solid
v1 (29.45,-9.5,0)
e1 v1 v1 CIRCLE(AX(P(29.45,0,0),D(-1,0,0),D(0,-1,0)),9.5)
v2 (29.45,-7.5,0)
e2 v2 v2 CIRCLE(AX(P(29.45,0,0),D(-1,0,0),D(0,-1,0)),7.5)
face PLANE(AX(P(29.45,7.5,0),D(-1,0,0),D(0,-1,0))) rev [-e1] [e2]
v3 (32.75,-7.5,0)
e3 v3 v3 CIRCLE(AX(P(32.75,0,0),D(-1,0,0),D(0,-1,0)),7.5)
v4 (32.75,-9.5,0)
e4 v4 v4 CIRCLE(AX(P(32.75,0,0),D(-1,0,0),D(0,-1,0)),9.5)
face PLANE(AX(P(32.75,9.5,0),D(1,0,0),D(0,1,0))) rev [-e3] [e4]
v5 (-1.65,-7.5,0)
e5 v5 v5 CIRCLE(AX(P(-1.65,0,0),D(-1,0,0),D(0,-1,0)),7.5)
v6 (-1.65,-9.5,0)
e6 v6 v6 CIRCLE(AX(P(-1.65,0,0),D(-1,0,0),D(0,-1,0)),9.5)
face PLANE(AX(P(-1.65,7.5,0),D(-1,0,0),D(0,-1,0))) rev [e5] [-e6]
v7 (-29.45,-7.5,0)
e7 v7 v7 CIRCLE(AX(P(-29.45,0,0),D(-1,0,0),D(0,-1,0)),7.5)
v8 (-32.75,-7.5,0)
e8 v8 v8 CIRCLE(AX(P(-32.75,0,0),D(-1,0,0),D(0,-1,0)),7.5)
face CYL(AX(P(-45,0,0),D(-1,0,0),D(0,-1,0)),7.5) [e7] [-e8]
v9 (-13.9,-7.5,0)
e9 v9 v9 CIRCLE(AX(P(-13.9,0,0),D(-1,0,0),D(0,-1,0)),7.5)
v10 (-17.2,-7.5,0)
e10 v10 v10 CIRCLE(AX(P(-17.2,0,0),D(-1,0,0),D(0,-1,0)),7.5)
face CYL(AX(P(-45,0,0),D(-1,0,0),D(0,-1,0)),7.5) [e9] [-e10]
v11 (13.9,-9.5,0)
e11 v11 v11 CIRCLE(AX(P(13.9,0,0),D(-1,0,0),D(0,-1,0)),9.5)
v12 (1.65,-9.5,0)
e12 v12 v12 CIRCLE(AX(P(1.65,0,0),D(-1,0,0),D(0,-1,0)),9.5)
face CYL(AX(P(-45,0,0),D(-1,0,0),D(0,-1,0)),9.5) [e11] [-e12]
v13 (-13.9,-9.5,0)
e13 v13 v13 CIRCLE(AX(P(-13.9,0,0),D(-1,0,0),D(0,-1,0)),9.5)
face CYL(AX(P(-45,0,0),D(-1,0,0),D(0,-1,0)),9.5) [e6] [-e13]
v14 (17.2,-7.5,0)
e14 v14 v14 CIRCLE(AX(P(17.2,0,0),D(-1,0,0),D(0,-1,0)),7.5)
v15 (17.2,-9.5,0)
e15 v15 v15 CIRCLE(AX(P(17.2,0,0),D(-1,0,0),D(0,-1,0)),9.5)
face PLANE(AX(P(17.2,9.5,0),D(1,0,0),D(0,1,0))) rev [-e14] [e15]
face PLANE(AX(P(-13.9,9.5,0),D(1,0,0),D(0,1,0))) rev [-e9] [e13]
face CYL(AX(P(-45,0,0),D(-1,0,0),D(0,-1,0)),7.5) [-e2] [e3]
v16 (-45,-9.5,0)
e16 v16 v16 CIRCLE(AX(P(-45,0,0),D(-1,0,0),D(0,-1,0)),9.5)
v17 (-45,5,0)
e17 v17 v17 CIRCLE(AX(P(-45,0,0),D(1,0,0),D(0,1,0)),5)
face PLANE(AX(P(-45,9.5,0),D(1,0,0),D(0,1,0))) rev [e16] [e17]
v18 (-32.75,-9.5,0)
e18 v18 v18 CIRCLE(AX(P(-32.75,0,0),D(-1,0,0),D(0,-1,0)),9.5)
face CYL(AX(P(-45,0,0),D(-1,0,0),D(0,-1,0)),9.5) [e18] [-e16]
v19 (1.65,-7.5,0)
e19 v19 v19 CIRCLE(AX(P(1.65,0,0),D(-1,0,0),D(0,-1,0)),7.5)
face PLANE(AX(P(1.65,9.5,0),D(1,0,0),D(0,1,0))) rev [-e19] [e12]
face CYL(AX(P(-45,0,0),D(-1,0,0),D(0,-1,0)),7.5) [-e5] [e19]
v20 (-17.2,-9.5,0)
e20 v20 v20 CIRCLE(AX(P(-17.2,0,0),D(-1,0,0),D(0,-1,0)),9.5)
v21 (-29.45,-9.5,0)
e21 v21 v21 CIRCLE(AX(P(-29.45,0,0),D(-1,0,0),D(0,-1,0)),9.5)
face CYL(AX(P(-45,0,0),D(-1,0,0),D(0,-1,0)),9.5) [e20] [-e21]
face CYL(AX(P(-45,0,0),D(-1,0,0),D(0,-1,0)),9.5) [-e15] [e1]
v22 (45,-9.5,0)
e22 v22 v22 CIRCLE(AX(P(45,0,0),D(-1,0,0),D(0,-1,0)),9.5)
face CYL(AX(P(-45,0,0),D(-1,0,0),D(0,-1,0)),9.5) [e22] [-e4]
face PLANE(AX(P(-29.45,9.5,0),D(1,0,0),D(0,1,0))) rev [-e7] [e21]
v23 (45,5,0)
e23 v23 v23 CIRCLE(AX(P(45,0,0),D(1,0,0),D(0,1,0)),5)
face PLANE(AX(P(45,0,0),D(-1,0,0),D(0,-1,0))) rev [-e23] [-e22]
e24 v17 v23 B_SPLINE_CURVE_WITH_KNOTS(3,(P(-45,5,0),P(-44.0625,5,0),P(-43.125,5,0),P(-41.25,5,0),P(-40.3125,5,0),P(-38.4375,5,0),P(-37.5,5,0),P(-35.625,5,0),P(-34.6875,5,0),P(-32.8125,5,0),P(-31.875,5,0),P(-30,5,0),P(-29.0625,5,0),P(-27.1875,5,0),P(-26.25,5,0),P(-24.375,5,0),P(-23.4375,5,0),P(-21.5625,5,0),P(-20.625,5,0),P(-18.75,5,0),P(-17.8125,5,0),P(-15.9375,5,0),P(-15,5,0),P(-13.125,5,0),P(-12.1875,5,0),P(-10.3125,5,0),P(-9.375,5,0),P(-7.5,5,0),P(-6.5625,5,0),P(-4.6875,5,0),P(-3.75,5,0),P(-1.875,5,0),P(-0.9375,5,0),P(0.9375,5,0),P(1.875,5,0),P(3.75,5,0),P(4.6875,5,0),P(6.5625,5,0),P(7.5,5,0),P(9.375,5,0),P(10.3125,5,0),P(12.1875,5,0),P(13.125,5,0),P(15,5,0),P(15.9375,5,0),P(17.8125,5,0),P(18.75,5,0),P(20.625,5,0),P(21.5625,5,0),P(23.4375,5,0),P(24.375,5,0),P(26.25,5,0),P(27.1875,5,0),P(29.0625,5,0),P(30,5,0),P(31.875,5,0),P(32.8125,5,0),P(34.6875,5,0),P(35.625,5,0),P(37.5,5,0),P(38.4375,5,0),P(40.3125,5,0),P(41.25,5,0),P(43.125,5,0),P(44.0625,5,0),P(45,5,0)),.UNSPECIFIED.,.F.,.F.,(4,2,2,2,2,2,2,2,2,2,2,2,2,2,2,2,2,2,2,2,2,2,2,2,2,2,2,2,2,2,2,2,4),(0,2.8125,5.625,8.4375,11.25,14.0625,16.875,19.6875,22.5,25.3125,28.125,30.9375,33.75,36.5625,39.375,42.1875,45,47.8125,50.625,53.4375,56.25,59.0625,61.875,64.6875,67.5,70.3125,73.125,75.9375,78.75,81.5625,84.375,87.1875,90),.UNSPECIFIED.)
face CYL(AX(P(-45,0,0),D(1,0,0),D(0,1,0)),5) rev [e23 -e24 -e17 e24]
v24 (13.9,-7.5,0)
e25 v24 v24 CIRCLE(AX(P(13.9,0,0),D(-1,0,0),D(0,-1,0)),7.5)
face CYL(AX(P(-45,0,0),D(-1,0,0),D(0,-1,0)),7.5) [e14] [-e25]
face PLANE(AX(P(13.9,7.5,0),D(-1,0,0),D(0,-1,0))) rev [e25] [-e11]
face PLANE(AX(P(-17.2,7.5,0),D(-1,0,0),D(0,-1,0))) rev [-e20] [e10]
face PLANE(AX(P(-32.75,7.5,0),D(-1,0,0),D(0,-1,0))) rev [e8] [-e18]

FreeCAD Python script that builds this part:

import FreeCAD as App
import Part
import Sketcher
from FreeCAD import Vector


def add_polygon(sketch, points):
    """Adds a closed chain of lines whose ends are joined by coincident constraints."""
    first, n = sketch.GeometryCount, len(points)
    for a, b in zip(points, points[1:] + points[:1]):
        sketch.addGeometry(Part.LineSegment(App.Vector(*a, 0), App.Vector(*b, 0)), False)
    for i in range(n):
        sketch.addConstraint(Sketcher.Constraint("Coincident", first + i, 2, first + (i + 1) % n, 1))

doc = App.newDocument("Part")
body = doc.addObject("PartDesign::Body", "Body")

# Sketch on XY plane
sketch1 = body.newObject("Sketcher::SketchObject", "Sketch")
sketch1.AttachmentSupport = (doc.getObject("XY_Plane"), [""])
sketch1.MapMode = "FlatFace"
add_polygon(sketch1, [(-45, 0), (45, 0), (45, 9.5), (32.75, 9.5), (32.75, 7.5), (29.45, 7.5), (29.45, 9.5), (17.2, 9.5), (17.2, 7.5), (13.9, 7.5), (13.9, 9.5), (1.65, 9.5), (1.65, 7.5), (-1.65, 7.5), (-1.65, 9.5), (-13.9, 9.5), (-13.9, 7.5), (-17.2, 7.5), (-17.2, 9.5), (-29.45, 9.5), (-29.45, 7.5), (-32.75, 7.5), (-32.75, 9.5), (-45, 9.5)])  # lines 0-23
sketch1.addConstraint([
    Sketcher.Constraint("Horizontal", 0),
    Sketcher.Constraint("Vertical", 1),
    Sketcher.Constraint("Horizontal", 2),
    Sketcher.Constraint("Vertical", 3),
    Sketcher.Constraint("Horizontal", 4),
    Sketcher.Constraint("Vertical", 5),
    Sketcher.Constraint("Horizontal", 6),
    Sketcher.Constraint("Vertical", 7),
    Sketcher.Constraint("Horizontal", 8),
    Sketcher.Constraint("Vertical", 9),
    Sketcher.Constraint("Horizontal", 10),
    Sketcher.Constraint("Vertical", 11),
    Sketcher.Constraint("Horizontal", 12),
    Sketcher.Constraint("Vertical", 13),
    Sketcher.Constraint("Horizontal", 14),
    Sketcher.Constraint("Vertical", 15),
    Sketcher.Constraint("Horizontal", 16),
    Sketcher.Constraint("Vertical", 17),
    Sketcher.Constraint("Horizontal", 18),
    Sketcher.Constraint("Vertical", 19),
    Sketcher.Constraint("Horizontal", 20),
    Sketcher.Constraint("Vertical", 21),
    Sketcher.Constraint("Horizontal", 22),
    Sketcher.Constraint("Vertical", 23),
    Sketcher.Constraint("Symmetric", 0, 2, 23, 2, -1, 1),
    Sketcher.Constraint("Symmetric", 10, 2, 13, 2, -2),
    Sketcher.Constraint("Symmetric", 8, 2, 15, 2, -2),
    Sketcher.Constraint("Symmetric", 6, 2, 17, 2, -2),
    Sketcher.Constraint("Symmetric", 4, 2, 19, 2, -2),
    Sketcher.Constraint("Symmetric", 2, 2, 21, 2, -2),
    Sketcher.Constraint("Horizontal", 2, 2, 5, 2),
    Sketcher.Constraint("Horizontal", 4, 2, 7, 2),
    Sketcher.Constraint("Horizontal", 6, 2, 9, 2),
    Sketcher.Constraint("Horizontal", 8, 2, 11, 2),
    Sketcher.Constraint("Equal", 2, 6),
    Sketcher.Constraint("Equal", 4, 8),
    Sketcher.Constraint("Equal", 6, 10),
    Sketcher.Constraint("Equal", 8, 12),
    Sketcher.Constraint("DistanceX", 0, 1, 0, 2, 90.0),
    Sketcher.Constraint("DistanceY", 3, 2, 3, 1, 2.0),
    Sketcher.Constraint("DistanceX", 4, 2, 4, 1, 3.3),
    Sketcher.Constraint("DistanceY", 1, 1, 1, 2, 9.5),
])
revolution = body.newObject("PartDesign::Revolution", "Revolution")
revolution.Profile = sketch1
revolution.ReferenceAxis = (sketch1, ["H_Axis"])
revolution.Angle = 360

# Sketch on YZ plane
sketch2 = body.newObject("Sketcher::SketchObject", "Sketch001")
sketch2.AttachmentSupport = (doc.getObject("YZ_Plane"), [""])
sketch2.MapMode = "FlatFace"
sketch2.AttachmentOffset = App.Placement(Vector(0, 0, 45), App.Rotation())
sketch2.addGeometry(Part.Circle(Vector(0, 0, 0), Vector(0, 0, 1), 5), False)
sketch2.addConstraint([
    Sketcher.Constraint("Coincident", 0, 3, -1, 1),
    Sketcher.Constraint("Diameter", 0, 10.0),
])
pocket1 = body.newObject("PartDesign::Pocket", "Pocket")
pocket1.Profile = sketch2
pocket1.Type = "ThroughAll"

doc.recompute()
